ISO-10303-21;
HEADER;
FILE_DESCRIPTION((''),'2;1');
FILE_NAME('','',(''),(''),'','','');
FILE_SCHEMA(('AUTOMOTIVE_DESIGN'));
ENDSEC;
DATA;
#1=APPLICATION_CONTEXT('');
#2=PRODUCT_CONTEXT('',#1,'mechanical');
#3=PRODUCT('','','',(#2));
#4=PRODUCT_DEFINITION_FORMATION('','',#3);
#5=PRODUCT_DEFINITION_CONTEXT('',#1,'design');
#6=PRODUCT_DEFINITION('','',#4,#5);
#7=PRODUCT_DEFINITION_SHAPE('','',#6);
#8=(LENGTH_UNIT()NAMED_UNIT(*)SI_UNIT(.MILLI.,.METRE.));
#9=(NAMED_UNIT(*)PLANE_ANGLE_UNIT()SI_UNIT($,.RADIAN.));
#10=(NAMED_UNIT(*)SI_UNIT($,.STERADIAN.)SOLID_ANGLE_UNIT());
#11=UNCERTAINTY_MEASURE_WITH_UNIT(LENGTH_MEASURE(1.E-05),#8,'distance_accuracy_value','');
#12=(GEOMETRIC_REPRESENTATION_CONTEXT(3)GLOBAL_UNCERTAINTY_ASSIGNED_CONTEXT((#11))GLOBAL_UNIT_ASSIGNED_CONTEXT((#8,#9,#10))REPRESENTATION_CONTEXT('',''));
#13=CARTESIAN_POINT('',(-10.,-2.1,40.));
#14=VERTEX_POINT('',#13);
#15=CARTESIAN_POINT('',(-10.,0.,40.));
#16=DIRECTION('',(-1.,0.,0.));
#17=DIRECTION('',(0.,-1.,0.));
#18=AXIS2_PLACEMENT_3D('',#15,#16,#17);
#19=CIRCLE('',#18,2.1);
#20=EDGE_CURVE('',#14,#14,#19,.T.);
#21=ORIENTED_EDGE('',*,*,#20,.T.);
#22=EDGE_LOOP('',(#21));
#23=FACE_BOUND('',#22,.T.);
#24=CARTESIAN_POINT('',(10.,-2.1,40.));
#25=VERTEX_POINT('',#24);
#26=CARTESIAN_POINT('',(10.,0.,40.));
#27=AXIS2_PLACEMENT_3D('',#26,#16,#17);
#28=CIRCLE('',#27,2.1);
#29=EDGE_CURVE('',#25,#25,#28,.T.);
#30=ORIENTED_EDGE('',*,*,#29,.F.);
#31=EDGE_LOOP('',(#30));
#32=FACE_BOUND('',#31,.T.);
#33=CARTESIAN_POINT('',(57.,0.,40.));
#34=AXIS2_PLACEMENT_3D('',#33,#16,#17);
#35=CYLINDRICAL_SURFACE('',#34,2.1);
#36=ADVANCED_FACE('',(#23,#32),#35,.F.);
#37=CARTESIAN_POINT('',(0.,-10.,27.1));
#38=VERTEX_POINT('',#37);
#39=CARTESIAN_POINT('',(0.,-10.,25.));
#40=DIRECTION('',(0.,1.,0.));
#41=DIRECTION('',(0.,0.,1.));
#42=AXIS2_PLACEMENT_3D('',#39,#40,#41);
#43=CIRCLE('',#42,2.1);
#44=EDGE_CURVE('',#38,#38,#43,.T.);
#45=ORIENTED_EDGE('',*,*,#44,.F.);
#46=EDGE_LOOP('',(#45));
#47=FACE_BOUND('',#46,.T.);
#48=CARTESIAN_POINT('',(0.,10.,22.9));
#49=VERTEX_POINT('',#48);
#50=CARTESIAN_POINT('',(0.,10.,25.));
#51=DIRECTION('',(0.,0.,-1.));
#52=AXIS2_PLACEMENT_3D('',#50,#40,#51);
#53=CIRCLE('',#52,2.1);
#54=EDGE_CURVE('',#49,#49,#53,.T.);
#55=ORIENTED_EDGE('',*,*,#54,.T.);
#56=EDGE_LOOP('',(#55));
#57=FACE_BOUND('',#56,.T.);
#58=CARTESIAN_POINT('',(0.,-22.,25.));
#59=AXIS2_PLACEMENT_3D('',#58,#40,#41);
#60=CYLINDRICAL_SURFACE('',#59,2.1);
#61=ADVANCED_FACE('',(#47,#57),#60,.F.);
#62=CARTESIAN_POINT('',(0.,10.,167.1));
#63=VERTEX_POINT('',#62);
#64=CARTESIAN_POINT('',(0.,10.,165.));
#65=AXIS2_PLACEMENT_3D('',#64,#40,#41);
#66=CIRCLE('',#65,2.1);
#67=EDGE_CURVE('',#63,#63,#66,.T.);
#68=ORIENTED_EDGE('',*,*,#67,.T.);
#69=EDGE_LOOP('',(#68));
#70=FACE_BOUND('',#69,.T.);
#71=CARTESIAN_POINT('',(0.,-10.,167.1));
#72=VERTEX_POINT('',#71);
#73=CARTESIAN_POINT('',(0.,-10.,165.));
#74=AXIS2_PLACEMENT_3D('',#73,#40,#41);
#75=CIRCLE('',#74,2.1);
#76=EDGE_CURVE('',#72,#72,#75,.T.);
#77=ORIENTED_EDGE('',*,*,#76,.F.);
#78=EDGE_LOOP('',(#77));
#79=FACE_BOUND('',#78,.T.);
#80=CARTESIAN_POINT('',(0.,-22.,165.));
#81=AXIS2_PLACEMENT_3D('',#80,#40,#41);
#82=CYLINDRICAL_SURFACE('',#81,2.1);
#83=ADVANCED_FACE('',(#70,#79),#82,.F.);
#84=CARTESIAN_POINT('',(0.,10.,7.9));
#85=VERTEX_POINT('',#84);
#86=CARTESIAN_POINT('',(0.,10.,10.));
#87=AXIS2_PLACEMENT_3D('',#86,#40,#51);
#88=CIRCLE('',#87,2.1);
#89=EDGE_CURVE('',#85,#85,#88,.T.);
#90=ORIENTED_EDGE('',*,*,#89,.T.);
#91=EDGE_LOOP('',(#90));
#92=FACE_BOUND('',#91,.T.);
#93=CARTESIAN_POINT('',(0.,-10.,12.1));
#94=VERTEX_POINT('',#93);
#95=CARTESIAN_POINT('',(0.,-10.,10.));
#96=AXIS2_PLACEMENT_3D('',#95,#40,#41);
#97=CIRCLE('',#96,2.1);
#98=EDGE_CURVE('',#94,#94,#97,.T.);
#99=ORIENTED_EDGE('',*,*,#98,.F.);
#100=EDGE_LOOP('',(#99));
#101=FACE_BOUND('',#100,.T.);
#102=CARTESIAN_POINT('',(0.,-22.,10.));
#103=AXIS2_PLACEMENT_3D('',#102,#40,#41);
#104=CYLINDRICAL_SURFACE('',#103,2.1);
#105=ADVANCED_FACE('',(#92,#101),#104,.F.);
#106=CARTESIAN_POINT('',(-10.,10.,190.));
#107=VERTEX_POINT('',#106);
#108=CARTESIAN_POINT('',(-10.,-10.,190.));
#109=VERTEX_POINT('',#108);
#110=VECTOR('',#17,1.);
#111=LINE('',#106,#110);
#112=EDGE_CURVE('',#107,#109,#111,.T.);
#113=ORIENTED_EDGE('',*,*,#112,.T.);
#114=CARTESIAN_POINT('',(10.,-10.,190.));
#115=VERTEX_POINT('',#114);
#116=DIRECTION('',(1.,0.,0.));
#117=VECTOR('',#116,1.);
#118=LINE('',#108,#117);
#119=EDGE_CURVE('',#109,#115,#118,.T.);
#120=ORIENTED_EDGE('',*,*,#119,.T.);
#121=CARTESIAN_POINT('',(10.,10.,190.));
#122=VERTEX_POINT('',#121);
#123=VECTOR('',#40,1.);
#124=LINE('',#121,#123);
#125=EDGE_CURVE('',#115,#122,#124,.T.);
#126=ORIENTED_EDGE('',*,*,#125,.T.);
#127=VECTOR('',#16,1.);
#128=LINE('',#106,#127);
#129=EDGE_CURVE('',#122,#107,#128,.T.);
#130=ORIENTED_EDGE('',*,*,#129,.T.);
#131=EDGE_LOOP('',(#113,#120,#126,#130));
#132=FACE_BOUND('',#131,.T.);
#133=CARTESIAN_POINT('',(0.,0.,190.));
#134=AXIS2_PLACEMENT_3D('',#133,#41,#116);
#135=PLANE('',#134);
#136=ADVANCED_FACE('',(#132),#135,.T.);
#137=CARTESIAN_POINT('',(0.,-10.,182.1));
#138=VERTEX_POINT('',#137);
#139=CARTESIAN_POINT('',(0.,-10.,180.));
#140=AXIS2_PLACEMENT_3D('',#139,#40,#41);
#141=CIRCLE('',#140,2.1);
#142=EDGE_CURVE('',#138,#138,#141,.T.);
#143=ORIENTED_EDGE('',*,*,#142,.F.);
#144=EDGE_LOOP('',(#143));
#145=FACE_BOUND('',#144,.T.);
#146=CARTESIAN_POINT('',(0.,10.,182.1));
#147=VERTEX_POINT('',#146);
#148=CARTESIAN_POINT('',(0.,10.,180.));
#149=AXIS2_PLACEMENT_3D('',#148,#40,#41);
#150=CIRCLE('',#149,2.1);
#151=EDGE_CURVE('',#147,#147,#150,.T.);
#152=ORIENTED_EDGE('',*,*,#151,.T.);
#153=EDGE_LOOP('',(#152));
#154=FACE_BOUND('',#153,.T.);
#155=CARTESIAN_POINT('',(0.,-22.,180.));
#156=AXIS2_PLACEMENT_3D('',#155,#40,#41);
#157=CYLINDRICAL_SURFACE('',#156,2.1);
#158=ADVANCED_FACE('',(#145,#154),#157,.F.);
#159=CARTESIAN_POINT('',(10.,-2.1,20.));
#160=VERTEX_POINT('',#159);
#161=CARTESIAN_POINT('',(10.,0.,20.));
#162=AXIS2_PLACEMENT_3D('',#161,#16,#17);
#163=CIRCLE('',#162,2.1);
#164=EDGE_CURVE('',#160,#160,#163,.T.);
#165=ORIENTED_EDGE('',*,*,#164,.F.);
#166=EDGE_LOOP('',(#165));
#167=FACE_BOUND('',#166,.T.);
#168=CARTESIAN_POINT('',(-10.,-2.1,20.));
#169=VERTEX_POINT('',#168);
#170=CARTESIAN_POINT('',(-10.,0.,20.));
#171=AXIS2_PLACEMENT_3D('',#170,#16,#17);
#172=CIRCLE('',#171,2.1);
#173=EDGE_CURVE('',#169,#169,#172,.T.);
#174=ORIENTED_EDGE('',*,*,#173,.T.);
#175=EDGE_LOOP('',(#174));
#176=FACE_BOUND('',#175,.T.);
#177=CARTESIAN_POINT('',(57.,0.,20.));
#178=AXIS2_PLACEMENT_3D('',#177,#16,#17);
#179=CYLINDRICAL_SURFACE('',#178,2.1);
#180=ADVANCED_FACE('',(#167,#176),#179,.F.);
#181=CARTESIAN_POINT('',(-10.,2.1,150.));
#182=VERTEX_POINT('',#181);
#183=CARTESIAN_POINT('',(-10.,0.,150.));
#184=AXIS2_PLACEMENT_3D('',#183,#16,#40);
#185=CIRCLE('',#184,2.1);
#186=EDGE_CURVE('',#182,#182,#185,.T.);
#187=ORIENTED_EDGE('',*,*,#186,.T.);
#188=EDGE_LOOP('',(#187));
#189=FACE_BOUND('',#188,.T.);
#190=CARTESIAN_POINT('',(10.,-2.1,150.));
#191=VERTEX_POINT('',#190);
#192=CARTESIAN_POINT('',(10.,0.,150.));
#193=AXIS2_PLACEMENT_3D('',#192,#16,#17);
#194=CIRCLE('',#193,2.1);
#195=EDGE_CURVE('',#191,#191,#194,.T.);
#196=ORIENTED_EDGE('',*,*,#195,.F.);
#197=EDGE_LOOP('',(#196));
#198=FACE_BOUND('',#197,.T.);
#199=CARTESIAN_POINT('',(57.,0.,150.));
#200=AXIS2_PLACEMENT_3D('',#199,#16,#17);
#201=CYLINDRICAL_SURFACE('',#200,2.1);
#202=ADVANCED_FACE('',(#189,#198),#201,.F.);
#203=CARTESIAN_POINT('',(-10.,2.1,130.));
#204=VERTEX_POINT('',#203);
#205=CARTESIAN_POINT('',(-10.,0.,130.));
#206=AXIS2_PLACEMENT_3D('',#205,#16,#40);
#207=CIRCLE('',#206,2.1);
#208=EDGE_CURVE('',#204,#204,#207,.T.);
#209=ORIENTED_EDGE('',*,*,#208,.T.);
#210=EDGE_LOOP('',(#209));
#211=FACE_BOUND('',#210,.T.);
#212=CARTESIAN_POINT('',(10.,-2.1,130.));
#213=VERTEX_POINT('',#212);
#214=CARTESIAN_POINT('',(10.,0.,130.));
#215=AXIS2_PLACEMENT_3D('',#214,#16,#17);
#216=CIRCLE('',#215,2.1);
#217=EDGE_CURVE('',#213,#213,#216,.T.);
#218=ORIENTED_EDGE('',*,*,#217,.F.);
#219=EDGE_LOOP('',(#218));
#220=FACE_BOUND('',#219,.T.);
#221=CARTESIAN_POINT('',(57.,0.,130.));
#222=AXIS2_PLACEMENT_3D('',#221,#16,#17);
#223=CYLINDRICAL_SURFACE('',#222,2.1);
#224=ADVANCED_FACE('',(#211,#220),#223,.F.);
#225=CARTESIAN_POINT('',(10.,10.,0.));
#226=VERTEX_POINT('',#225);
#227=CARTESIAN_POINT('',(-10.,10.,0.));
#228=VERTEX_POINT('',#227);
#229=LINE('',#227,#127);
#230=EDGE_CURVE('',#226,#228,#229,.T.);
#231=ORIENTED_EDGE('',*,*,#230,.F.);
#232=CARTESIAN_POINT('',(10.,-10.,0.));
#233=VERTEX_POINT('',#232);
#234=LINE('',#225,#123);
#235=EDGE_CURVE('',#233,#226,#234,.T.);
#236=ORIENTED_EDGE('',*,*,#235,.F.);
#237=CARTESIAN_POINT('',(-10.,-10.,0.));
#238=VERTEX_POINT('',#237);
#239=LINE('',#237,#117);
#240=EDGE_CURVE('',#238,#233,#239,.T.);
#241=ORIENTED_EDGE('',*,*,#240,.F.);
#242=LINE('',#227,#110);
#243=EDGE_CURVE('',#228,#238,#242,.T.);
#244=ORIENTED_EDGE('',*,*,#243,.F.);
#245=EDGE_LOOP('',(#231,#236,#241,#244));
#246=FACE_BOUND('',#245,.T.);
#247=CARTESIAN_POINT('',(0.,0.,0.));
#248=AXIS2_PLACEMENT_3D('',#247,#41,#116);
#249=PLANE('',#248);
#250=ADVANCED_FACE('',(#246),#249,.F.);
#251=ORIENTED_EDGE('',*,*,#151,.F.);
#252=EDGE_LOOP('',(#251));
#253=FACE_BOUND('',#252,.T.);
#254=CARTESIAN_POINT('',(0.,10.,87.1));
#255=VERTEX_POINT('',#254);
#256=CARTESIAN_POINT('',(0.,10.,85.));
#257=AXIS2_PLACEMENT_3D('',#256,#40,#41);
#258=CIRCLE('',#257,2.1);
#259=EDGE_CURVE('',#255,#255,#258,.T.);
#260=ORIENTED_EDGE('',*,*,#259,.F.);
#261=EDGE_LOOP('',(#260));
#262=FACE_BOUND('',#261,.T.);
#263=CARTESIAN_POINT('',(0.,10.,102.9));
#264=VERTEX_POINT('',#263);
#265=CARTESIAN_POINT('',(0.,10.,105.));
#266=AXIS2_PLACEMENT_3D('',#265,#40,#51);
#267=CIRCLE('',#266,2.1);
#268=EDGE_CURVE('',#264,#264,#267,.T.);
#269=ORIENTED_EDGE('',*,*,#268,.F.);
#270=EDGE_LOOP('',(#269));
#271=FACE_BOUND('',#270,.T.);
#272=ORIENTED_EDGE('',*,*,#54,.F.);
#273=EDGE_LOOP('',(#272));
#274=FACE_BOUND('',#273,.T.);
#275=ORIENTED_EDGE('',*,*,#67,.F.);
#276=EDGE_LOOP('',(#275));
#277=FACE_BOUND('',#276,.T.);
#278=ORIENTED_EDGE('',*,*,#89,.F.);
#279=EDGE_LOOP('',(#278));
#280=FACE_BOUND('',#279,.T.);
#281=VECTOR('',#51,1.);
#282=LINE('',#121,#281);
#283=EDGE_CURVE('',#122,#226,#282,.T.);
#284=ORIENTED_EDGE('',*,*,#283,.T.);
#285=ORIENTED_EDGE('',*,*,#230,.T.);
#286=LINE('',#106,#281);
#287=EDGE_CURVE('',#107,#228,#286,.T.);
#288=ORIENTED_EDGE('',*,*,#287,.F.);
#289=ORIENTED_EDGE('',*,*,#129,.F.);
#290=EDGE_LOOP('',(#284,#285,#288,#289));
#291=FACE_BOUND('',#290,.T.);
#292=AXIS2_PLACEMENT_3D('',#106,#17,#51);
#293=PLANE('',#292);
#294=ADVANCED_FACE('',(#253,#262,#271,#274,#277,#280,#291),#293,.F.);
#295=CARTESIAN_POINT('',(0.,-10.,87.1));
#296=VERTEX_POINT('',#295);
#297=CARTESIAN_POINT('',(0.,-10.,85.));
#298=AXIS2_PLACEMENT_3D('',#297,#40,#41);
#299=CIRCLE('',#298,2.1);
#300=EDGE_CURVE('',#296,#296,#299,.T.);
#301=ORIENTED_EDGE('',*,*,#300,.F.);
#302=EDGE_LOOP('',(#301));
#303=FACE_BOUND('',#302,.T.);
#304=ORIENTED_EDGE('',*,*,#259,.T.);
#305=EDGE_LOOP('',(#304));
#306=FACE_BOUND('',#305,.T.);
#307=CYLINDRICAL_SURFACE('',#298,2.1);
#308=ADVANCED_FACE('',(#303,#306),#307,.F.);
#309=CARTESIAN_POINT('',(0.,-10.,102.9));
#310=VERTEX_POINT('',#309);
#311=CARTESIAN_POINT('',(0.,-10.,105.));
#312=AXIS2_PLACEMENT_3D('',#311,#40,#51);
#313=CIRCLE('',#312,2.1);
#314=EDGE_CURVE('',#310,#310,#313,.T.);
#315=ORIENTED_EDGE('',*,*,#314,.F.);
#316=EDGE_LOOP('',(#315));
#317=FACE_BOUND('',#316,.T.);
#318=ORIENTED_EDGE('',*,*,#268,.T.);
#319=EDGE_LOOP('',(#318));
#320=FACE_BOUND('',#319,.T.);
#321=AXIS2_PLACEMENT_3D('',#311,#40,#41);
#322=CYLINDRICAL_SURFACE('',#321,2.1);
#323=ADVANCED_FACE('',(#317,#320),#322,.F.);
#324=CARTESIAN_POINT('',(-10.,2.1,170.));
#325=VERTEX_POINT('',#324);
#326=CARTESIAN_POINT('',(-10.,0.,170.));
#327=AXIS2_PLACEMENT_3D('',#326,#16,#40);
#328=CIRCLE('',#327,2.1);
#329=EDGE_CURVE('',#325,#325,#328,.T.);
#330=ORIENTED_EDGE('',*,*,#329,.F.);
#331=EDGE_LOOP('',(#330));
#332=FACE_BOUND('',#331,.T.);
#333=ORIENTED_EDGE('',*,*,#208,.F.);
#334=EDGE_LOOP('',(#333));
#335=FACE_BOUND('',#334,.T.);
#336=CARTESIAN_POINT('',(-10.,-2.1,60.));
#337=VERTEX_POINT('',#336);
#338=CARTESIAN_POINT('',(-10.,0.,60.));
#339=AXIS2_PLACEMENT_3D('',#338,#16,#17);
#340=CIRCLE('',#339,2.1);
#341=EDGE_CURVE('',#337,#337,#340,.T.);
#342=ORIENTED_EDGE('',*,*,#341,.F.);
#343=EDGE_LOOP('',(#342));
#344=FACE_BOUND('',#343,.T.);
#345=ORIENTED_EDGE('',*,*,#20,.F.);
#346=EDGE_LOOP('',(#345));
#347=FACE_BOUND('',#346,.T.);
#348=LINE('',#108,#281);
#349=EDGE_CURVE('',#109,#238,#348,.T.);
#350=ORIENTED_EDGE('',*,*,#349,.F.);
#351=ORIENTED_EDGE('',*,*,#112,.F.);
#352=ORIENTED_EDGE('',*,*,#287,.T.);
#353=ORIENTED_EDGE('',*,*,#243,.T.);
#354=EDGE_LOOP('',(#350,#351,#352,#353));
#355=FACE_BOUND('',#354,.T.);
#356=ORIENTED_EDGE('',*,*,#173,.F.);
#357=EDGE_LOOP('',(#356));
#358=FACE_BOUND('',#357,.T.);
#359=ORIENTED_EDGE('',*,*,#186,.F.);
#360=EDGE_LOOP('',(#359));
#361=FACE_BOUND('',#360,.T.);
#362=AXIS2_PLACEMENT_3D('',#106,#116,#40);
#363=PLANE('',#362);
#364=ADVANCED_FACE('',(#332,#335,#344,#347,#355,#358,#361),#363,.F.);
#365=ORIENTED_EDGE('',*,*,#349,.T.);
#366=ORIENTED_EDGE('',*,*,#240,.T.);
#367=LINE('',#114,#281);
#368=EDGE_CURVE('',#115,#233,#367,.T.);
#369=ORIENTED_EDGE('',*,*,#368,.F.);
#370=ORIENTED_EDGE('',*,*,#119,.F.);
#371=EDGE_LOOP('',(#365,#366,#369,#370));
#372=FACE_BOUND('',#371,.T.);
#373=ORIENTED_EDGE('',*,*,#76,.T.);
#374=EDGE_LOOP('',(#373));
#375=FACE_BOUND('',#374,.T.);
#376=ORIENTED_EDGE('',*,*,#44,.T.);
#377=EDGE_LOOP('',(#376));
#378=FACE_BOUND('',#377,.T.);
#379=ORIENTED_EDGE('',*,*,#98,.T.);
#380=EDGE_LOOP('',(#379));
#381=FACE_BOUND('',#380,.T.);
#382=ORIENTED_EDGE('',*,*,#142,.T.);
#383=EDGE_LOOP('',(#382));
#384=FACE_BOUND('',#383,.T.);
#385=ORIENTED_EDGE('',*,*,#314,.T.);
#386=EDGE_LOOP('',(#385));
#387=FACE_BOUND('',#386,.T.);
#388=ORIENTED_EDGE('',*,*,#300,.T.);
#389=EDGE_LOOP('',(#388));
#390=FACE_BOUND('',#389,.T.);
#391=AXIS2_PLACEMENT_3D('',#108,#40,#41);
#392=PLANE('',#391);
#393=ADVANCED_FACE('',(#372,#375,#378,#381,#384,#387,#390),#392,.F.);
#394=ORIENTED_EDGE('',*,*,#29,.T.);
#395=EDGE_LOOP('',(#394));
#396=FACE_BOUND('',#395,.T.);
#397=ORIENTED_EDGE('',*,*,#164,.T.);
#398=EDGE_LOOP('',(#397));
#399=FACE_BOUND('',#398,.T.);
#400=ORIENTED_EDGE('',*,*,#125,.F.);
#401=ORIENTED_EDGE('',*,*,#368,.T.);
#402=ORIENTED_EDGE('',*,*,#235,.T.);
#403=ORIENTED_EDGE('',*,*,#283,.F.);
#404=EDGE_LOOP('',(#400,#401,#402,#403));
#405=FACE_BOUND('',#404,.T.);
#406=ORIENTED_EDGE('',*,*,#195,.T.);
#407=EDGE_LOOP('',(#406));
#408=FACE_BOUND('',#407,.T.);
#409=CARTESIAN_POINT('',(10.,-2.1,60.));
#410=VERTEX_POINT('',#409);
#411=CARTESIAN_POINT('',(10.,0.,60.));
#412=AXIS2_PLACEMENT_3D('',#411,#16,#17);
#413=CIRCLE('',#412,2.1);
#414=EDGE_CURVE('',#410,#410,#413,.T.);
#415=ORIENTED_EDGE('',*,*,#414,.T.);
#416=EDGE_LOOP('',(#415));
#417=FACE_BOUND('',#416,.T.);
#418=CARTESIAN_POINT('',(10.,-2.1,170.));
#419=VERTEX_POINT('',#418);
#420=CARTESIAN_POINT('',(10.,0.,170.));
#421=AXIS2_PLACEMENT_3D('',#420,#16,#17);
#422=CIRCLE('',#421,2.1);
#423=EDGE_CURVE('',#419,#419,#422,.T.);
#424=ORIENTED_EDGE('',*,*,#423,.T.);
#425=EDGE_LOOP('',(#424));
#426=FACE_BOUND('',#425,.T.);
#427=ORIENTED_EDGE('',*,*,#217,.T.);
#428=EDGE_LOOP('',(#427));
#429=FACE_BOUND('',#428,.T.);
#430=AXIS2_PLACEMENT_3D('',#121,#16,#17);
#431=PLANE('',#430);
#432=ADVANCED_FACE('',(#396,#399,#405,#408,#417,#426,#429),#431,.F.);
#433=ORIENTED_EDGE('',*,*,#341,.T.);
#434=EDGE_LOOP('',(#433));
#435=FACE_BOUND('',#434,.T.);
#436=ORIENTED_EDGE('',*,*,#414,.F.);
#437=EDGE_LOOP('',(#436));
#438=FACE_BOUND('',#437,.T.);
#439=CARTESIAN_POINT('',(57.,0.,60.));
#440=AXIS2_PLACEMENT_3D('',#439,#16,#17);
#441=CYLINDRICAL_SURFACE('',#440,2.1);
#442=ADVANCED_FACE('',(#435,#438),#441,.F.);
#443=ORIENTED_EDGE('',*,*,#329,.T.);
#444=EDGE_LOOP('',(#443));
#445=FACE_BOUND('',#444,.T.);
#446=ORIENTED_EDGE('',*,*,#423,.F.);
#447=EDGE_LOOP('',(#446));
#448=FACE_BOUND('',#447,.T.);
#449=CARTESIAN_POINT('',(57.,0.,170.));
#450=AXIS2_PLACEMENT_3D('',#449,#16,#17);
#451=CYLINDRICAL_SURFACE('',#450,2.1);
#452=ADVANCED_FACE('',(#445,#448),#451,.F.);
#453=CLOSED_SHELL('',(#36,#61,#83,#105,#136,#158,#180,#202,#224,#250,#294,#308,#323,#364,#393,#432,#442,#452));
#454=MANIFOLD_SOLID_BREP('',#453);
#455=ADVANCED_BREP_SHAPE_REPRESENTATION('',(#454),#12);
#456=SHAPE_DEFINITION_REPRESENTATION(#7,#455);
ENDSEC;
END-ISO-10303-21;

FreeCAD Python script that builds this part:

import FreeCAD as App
import Part
import Sketcher
Q = App.Units.Quantity


def add_polygon(sketch, points):
    """Adds a closed chain of lines whose ends are joined by coincident constraints."""
    first, n = sketch.GeometryCount, len(points)
    for a, b in zip(points, points[1:] + points[:1]):
        sketch.addGeometry(Part.LineSegment(App.Vector(*a, 0), App.Vector(*b, 0)), False)
    for i in range(n):
        sketch.addConstraint(Sketcher.Constraint("Coincident", first + i, 2, first + (i + 1) % n, 1))

doc = App.newDocument("Part")
params = doc.addObject("Spreadsheet::Sheet", "Params")
for row, (alias, value) in enumerate([
    ("sketch1_width", "20 mm"),
    ("pad1_length", "190 mm"),
    ("sketch2_diameter", "4.2 mm"),
    ("pocket1_length", "67 mm"),
    ("sketch3_diameter", "4.2 mm"),
    ("pocket2_length", "32 mm"),
    ("sketch4_diameter", "4.2 mm"),
], start=1):
    params.set(f"A{row}", alias)
    params.set(f"B{row}", "=" + value)
    params.setAlias(f"B{row}", alias)

body = doc.addObject("PartDesign::Body", "Body")

# Sketch on XY plane
sketch1 = body.newObject("Sketcher::SketchObject", "Sketch")
sketch1.AttachmentSupport = (doc.getObject("XY_Plane"), [""])
sketch1.MapMode = "FlatFace"
add_polygon(sketch1, [(-10, 10), (-10, -10), (10, -10), (10, 10)])  # lines 0-3
sketch1.addConstraint([
    Sketcher.Constraint("Vertical", 0),
    Sketcher.Constraint("Horizontal", 1),
    Sketcher.Constraint("Vertical", 2),
    Sketcher.Constraint("Horizontal", 3),
    Sketcher.Constraint("Symmetric", 0, 2, 2, 2, -1, 1),
    Sketcher.Constraint("Equal", 3, 0),
    Sketcher.Constraint("DistanceX", 1, 1, 1, 2, Q("20 mm")),
])
sketch1.setExpression("Constraints[10]", "Params.sketch1_width")
pad1 = body.newObject("PartDesign::Pad", "Pad")
pad1.Profile = sketch1
pad1.setExpression("Length", "Params.pad1_length")

# Sketch on YZ plane
sketch2 = body.newObject("Sketcher::SketchObject", "Sketch001")
sketch2.AttachmentSupport = (doc.getObject("YZ_Plane"), [""])
sketch2.MapMode = "FlatFace"
sketch2.AttachmentOffset = App.Placement(App.Vector(0, 0, -10), App.Rotation())
sketch2.addGeometry([
    Part.Circle(App.Vector(0, 40, 0), App.Vector(0, 0, 1), 2.1),  # 0
    Part.Circle(App.Vector(0, 20, 0), App.Vector(0, 0, 1), 2.1),  # 1
    Part.Circle(App.Vector(0, 60, 0), App.Vector(0, 0, 1), 2.1),  # 2
    Part.Circle(App.Vector(0, 130, 0), App.Vector(0, 0, 1), 2.1),  # 3
    Part.Circle(App.Vector(0, 170, 0), App.Vector(0, 0, 1), 2.1),  # 4
    Part.Circle(App.Vector(0, 150, 0), App.Vector(0, 0, 1), 2.1),  # 5
], False)
sketch2.addConstraint([
    Sketcher.Constraint("Equal", 0, 1),
    Sketcher.Constraint("Equal", 1, 2),
    Sketcher.Constraint("Equal", 2, 3),
    Sketcher.Constraint("Equal", 3, 4),
    Sketcher.Constraint("Equal", 4, 5),
    Sketcher.Constraint("PointOnObject", 0, 3, -2),
    Sketcher.Constraint("PointOnObject", 1, 3, -2),
    Sketcher.Constraint("PointOnObject", 2, 3, -2),
    Sketcher.Constraint("PointOnObject", 3, 3, -2),
    Sketcher.Constraint("PointOnObject", 4, 3, -2),
    Sketcher.Constraint("PointOnObject", 5, 3, -2),
    Sketcher.Constraint("Diameter", 0, Q("4.2 mm")),
    Sketcher.Constraint("DistanceY", -1, 1, 0, 3, Q("40 mm")),
    Sketcher.Constraint("DistanceY", -1, 1, 1, 3, Q("20 mm")),
    Sketcher.Constraint("DistanceY", -1, 1, 2, 3, Q("60 mm")),
    Sketcher.Constraint("DistanceY", -1, 1, 3, 3, Q("130 mm")),
    Sketcher.Constraint("DistanceY", -1, 1, 4, 3, Q("170 mm")),
    Sketcher.Constraint("DistanceY", -1, 1, 5, 3, Q("150 mm")),
])
sketch2.setExpression("Constraints[11]", "Params.sketch2_diameter")
pocket1 = body.newObject("PartDesign::Pocket", "Pocket")
pocket1.Profile = sketch2
pocket1.setExpression("Length", "Params.pocket1_length")
pocket1.Reversed = True

# Sketch on XZ plane
sketch3 = body.newObject("Sketcher::SketchObject", "Sketch002")
sketch3.AttachmentSupport = (doc.getObject("XZ_Plane"), [""])
sketch3.MapMode = "FlatFace"
sketch3.AttachmentOffset = App.Placement(App.Vector(0, 0, -10), App.Rotation())
sketch3.addGeometry([
    Part.Circle(App.Vector(0, 180, 0), App.Vector(0, 0, 1), 2.1),
    Part.Circle(App.Vector(0, 165, 0), App.Vector(0, 0, 1), 2.1),
    Part.Circle(App.Vector(0, 25, 0), App.Vector(0, 0, 1), 2.1),
    Part.Circle(App.Vector(0, 10, 0), App.Vector(0, 0, 1), 2.1),
], False)
sketch3.addConstraint([
    Sketcher.Constraint("Equal", 0, 1),
    Sketcher.Constraint("Equal", 1, 2),
    Sketcher.Constraint("Equal", 2, 3),
    Sketcher.Constraint("PointOnObject", 0, 3, -2),
    Sketcher.Constraint("PointOnObject", 1, 3, -2),
    Sketcher.Constraint("PointOnObject", 2, 3, -2),
    Sketcher.Constraint("PointOnObject", 3, 3, -2),
    Sketcher.Constraint("Diameter", 0, Q("4.2 mm")),
    Sketcher.Constraint("DistanceY", -1, 1, 0, 3, Q("180 mm")),
    Sketcher.Constraint("DistanceY", -1, 1, 1, 3, Q("165 mm")),
    Sketcher.Constraint("DistanceY", -1, 1, 2, 3, Q("25 mm")),
    Sketcher.Constraint("DistanceY", -1, 1, 3, 3, Q("10 mm")),
])
sketch3.setExpression("Constraints[7]", "Params.sketch3_diameter")
pocket2 = body.newObject("PartDesign::Pocket", "Pocket001")
pocket2.Profile = sketch3
pocket2.setExpression("Length", "Params.pocket2_length")
pocket2.Reversed = True

# Sketch on XZ plane
sketch4 = body.newObject("Sketcher::SketchObject", "Sketch003")
sketch4.AttachmentSupport = (doc.getObject("XZ_Plane"), [""])
sketch4.MapMode = "FlatFace"
sketch4.AttachmentOffset = App.Placement(App.Vector(0, 0, -10), App.Rotation())
sketch4.addGeometry([
    Part.Circle(App.Vector(0, 85, 0), App.Vector(0, 0, 1), 2.1),
    Part.Circle(App.Vector(0, 105, 0), App.Vector(0, 0, 1), 2.1),
], False)
sketch4.addConstraint([
    Sketcher.Constraint("Equal", 0, 1),
    Sketcher.Constraint("PointOnObject", 0, 3, -2),
    Sketcher.Constraint("PointOnObject", 1, 3, -2),
    Sketcher.Constraint("Diameter", 0, Q("4.2 mm")),
    Sketcher.Constraint("DistanceY", -1, 1, 0, 3, Q("85 mm")),
    Sketcher.Constraint("DistanceY", -1, 1, 1, 3, Q("105 mm")),
])
sketch4.setExpression("Constraints[3]", "Params.sketch4_diameter")
pocket3 = body.newObject("PartDesign::Pocket", "Pocket002")
pocket3.Profile = sketch4
pocket3.Type = "ThroughAll"
pocket3.Reversed = True

doc.recompute()
